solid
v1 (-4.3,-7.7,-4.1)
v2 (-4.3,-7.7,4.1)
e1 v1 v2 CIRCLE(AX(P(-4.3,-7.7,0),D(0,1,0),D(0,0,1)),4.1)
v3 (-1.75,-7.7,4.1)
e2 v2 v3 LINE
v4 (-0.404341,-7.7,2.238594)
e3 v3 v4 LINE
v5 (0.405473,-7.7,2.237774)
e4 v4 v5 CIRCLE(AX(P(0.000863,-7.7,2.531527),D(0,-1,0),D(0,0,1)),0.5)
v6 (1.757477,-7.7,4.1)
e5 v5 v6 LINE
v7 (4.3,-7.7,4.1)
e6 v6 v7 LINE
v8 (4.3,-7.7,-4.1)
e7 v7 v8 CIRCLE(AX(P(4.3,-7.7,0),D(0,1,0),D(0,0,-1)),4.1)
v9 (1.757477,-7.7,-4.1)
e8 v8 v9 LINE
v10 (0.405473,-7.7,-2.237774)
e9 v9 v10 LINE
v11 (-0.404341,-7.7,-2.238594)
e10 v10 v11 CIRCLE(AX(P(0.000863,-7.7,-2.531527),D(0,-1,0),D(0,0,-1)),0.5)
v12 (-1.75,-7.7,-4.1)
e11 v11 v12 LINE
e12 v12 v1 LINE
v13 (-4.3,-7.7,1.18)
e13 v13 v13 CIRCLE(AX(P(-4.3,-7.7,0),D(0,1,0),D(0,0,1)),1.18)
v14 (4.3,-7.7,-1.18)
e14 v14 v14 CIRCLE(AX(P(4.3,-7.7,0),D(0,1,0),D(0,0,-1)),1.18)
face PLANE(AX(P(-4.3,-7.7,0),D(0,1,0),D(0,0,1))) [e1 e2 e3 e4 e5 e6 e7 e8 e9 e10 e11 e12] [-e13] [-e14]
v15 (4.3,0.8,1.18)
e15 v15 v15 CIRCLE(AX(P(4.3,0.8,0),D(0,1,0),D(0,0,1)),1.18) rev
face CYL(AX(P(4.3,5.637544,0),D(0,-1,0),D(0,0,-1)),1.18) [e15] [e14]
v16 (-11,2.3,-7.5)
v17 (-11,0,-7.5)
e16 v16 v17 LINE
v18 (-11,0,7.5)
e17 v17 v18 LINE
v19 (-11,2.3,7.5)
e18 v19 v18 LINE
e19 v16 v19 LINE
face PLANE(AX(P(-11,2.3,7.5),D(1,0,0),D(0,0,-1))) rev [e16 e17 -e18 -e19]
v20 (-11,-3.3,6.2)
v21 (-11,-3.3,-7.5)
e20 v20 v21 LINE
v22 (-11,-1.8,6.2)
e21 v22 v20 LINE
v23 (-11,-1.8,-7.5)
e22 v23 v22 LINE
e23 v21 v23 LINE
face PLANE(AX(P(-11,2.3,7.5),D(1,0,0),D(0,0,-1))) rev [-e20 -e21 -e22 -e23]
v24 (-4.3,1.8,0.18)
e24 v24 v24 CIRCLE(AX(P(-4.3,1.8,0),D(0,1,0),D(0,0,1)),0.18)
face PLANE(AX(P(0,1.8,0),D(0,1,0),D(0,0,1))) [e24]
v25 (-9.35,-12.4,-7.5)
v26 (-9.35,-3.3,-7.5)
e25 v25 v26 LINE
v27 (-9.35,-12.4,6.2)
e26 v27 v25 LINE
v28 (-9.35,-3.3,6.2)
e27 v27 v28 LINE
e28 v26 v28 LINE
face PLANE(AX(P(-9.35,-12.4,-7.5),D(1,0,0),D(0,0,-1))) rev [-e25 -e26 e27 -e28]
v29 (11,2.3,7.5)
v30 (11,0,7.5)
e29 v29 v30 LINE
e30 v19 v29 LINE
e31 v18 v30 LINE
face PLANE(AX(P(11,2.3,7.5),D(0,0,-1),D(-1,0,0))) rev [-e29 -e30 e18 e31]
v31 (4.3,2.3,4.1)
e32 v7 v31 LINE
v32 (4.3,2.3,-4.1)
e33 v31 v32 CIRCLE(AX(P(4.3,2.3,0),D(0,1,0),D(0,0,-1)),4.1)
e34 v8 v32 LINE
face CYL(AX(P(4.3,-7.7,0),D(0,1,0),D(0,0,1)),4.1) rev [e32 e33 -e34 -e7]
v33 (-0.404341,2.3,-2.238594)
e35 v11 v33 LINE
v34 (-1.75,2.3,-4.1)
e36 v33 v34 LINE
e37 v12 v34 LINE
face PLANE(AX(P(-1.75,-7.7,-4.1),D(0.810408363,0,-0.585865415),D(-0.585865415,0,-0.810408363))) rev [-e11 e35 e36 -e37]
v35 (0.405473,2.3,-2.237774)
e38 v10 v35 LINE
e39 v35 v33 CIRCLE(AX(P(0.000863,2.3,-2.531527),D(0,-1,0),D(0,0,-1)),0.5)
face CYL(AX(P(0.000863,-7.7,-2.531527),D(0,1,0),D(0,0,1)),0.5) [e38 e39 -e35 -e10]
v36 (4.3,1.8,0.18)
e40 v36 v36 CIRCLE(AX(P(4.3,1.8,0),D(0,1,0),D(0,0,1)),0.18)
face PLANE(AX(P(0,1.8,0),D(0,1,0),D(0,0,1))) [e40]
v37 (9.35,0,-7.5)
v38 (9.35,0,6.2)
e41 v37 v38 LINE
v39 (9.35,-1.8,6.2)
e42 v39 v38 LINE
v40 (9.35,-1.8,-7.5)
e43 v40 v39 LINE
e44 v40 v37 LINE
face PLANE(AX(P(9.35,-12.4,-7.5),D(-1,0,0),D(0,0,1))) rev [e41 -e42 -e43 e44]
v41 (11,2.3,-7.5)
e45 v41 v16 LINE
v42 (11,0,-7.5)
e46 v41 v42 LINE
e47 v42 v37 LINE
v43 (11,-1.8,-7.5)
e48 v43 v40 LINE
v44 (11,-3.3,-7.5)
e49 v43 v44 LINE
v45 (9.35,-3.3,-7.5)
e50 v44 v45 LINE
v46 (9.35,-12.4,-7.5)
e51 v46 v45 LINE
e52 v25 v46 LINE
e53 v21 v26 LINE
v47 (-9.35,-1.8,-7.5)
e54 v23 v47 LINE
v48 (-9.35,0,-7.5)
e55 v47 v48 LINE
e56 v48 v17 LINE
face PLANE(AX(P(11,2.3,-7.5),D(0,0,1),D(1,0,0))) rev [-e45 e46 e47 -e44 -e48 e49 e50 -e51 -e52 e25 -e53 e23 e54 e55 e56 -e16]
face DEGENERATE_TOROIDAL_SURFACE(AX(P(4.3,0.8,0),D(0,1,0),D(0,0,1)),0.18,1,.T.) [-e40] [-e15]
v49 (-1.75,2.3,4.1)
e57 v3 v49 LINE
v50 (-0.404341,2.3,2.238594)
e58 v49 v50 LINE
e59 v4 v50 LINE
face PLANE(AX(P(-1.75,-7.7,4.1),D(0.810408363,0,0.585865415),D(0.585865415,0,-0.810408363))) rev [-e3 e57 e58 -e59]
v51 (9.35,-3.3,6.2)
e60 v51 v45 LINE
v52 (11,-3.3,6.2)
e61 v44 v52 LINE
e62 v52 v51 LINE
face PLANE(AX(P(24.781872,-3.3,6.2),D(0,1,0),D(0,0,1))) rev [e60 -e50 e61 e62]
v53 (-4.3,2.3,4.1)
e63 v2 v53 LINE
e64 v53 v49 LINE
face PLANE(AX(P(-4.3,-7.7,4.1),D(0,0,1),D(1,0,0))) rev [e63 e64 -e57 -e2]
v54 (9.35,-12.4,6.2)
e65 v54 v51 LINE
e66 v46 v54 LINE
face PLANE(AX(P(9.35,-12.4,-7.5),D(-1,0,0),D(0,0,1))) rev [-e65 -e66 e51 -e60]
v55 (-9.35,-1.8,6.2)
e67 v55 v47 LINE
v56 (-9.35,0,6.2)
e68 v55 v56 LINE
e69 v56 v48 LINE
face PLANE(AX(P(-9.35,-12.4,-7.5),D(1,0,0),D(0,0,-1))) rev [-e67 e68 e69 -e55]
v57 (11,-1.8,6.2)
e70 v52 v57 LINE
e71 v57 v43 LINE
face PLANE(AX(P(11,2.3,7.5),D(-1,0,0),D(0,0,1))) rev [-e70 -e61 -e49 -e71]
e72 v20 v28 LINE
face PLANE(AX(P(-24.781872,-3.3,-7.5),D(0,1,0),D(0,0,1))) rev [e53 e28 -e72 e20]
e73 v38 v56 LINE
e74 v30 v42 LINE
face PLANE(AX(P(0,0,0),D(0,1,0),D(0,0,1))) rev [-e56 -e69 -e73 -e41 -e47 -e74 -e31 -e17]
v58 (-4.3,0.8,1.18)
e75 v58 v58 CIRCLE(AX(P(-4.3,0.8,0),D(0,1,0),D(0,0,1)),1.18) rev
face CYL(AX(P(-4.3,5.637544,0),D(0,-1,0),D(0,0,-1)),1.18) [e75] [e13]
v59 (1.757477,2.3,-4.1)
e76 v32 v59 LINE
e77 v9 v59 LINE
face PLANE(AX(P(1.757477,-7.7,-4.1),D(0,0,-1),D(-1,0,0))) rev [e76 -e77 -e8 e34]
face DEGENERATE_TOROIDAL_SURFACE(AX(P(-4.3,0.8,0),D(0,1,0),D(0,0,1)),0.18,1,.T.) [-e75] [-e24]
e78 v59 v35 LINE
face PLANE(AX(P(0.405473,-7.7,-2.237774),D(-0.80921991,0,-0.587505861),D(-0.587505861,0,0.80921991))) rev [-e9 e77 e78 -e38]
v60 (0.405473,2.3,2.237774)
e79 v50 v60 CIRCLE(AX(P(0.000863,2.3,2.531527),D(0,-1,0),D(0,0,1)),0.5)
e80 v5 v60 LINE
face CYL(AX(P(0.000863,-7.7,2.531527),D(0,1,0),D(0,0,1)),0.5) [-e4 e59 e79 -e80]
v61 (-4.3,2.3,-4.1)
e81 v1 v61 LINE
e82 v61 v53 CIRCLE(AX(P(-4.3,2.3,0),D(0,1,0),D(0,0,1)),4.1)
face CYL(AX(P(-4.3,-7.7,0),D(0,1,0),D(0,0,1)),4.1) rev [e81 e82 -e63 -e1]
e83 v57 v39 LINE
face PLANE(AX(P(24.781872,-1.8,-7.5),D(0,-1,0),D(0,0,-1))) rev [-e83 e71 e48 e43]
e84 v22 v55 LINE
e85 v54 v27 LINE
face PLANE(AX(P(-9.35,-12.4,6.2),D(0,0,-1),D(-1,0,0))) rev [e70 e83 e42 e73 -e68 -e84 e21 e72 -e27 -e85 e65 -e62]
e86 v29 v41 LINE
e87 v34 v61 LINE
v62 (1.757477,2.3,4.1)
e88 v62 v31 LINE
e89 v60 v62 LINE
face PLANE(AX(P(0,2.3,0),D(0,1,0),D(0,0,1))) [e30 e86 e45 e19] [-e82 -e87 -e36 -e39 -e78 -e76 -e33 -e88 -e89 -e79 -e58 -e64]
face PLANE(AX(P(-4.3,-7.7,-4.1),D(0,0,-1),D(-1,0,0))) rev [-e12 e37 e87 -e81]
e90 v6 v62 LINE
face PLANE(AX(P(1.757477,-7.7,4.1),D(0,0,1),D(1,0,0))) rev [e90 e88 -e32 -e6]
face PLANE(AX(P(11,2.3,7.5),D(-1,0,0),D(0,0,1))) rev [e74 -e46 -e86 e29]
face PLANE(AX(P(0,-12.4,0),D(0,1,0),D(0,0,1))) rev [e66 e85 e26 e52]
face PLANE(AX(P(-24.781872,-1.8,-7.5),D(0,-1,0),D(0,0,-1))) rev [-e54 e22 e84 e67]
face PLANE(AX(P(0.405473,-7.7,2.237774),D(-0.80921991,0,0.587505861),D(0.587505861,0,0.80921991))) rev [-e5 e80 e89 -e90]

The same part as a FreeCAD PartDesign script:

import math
import FreeCAD as App
import Part
import Sketcher

V = App.Vector
Q = App.Units.Quantity


def edges_at(feature, points):
    """Names of the edges that pass closest to the given points."""
    edges = feature.Shape.Edges
    near = lambda p: min(range(len(edges)), key=lambda i: edges[i].distToShape(Part.Vertex(*p))[0])
    return sorted({f"Edge{near(p) + 1}" for p in points})


def add_polygon(sketch, points):
    """Adds a closed chain of lines whose ends are joined by coincident constraints."""
    first, n = sketch.GeometryCount, len(points)
    for a, b in zip(points, points[1:] + points[:1]):
        sketch.addGeometry(Part.LineSegment(App.Vector(*a, 0), App.Vector(*b, 0)), False)
    for i in range(n):
        sketch.addConstraint(Sketcher.Constraint("Coincident", first + i, 2, first + (i + 1) % n, 1))

doc = App.newDocument("Part")
params = doc.addObject("Spreadsheet::Sheet", "Params")
for row, (alias, value) in enumerate([
    ("sketch1_width", "22 mm"),
    ("sketch1_height", "15 mm"),
    ("pad1_length", "2.3 mm"),
    ("sketch2_width", "18.7 mm"),
    ("sketch2_height", "13.7 mm"),
    ("pad2_length", "12.4 mm"),
    ("sketch3_width", "1.5 mm"),
    ("sketch3_height", "13.7 mm"),
    ("pad3_length", "1.65 mm"),
    ("sketch4_width", "1.5 mm"),
    ("sketch4_height", "13.7 mm"),
    ("pad4_length", "1.65 mm"),
    ("sketch5_radius", "4.1 mm"),
    ("sketch5_radius2", "0.5 mm"),
    ("sketch5_width", "2.55 mm"),
    ("pocket1_length", "10 mm"),
    ("sketch6_diameter", "2.36 mm"),
    ("pad5_length", "9.5 mm"),
    ("fillet_radius", "1 mm"),
], start=1):
    params.set(f"A{row}", alias)
    params.set(f"B{row}", "=" + value)
    params.setAlias(f"B{row}", alias)

body = doc.addObject("PartDesign::Body", "Body")

sketch1 = body.newObject("Sketcher::SketchObject", "Sketch")
sketch1.AttachmentSupport = (doc.getObject("XZ_Plane"), [""])
sketch1.MapMode = "FlatFace"
add_polygon(sketch1, [(-11, -8), (-11, 8), (11, 8), (11, -8)])
sketch1.addConstraint([
    Sketcher.Constraint("Vertical", 0),
    Sketcher.Constraint("Horizontal", 1),
    Sketcher.Constraint("Vertical", 2),
    Sketcher.Constraint("Horizontal", 3),
    Sketcher.Constraint("Symmetric", 0, 2, 2, 2, -1, 1),
    Sketcher.Constraint("DistanceX", 1, 1, 1, 2, Q("22 mm")),
    Sketcher.Constraint("DistanceY", 0, 1, 0, 2, Q("15 mm")),
])
sketch1.setExpression("Constraints[9]", "Params.sketch1_width")
sketch1.setExpression("Constraints[10]", "Params.sketch1_height")
pad1 = body.newObject("PartDesign::Pad", "Pad")
pad1.Profile = sketch1
pad1.setExpression("Length", "Params.pad1_length")
pad1.Reversed = True

sketch2 = body.newObject("Sketcher::SketchObject", "Sketch001")
sketch2.AttachmentSupport = (doc.getObject("XZ_Plane"), [""])
sketch2.MapMode = "FlatFace"
add_polygon(sketch2, [(-9, 6), (-9, -8), (9, -8), (9, 6)])
sketch2.addConstraint([
    Sketcher.Constraint("Vertical", 0),
    Sketcher.Constraint("Horizontal", 1),
    Sketcher.Constraint("Vertical", 2),
    Sketcher.Constraint("Horizontal", 3),
    Sketcher.Constraint("DistanceX", 1, 1, 1, 2, Q("18.7 mm")),
    Sketcher.Constraint("DistanceY", 0, 2, 0, 1, Q("13.7 mm")),
    Sketcher.Constraint("DistanceY", 0, 2, -1, 1, Q("7.5 mm")),
    Sketcher.Constraint("DistanceX", 0, 2, -1, 1, Q("9.35 mm")),
])
sketch2.setExpression("Constraints[8]", "Params.sketch2_width")
sketch2.setExpression("Constraints[9]", "Params.sketch2_height")
pad2 = body.newObject("PartDesign::Pad", "Pad001")
pad2.Profile = sketch2
pad2.setExpression("Length", "Params.pad2_length")

sketch3 = body.newObject("Sketcher::SketchObject", "Sketch002")
sketch3.AttachmentSupport = (doc.getObject("YZ_Plane"), [""])
sketch3.MapMode = "FlatFace"
sketch3.AttachmentOffset = App.Placement(V(0, 0, -9.35), App.Rotation())
add_polygon(sketch3, [(-1.8, -7.5), (-3.3, -7.5), (-3.3, 6.2), (-1.8, 6.2)])
sketch3.addConstraint([
    Sketcher.Constraint("Horizontal", 0),
    Sketcher.Constraint("Vertical", 1),
    Sketcher.Constraint("Horizontal", 2),
    Sketcher.Constraint("Vertical", 3),
    Sketcher.Constraint("DistanceX", 0, 2, 0, 1, Q("1.5 mm")),
    Sketcher.Constraint("DistanceY", 1, 1, 1, 2, Q("13.7 mm")),
    Sketcher.Constraint("DistanceX", 0, 2, -1, 1, Q("3.3 mm")),
    Sketcher.Constraint("DistanceY", 0, 2, -1, 1, Q("7.5 mm")),
])
sketch3.setExpression("Constraints[8]", "Params.sketch3_width")
sketch3.setExpression("Constraints[9]", "Params.sketch3_height")
pad3 = body.newObject("PartDesign::Pad", "Pad002")
pad3.Profile = sketch3
pad3.setExpression("Length", "Params.pad3_length")
pad3.Reversed = True

sketch4 = body.newObject("Sketcher::SketchObject", "Sketch003")
sketch4.AttachmentSupport = (doc.getObject("YZ_Plane"), [""])
sketch4.MapMode = "FlatFace"
sketch4.AttachmentOffset = App.Placement(V(0, 0, 9.35), App.Rotation())
add_polygon(sketch4, [(-1.8, 6.2), (-3.3, 6.2), (-3.3, -7.5), (-1.8, -7.5)])
sketch4.addConstraint([
    Sketcher.Constraint("Horizontal", 0),
    Sketcher.Constraint("Vertical", 1),
    Sketcher.Constraint("Horizontal", 2),
    Sketcher.Constraint("Vertical", 3),
    Sketcher.Constraint("DistanceX", 0, 2, 0, 1, Q("1.5 mm")),
    Sketcher.Constraint("DistanceY", 1, 2, 1, 1, Q("13.7 mm")),
    Sketcher.Constraint("DistanceX", 0, 2, -1, 1, Q("3.3 mm")),
    Sketcher.Constraint("DistanceY", -1, 1, 0, 2, Q("6.2 mm")),
])
sketch4.setExpression("Constraints[8]", "Params.sketch4_width")
sketch4.setExpression("Constraints[9]", "Params.sketch4_height")
pad4 = body.newObject("PartDesign::Pad", "Pad003")
pad4.Profile = sketch4
pad4.setExpression("Length", "Params.pad4_length")

sketch5 = body.newObject("Sketcher::SketchObject", "Sketch004")
sketch5.AttachmentSupport = (doc.getObject("XZ_Plane"), [""])
sketch5.MapMode = "FlatFace"
sketch5.AttachmentOffset = App.Placement(V(0, 0, -2.3), App.Rotation())
sketch5.addGeometry([
    Part.LineSegment(V(0.4, 2.2, 0), V(1.8, 4.1, 0)),
    Part.LineSegment(V(1.8, 4.1, 0), V(4.3, 4.1, 0)),
    Part.ArcOfCircle(Part.Circle(V(4.3, 0, 0), V(0, 0, 1), 4.1), math.radians(-90), math.radians(90)),
    Part.LineSegment(V(4.3, -4.1, 0), V(1.8, -4.1, 0)),
    Part.LineSegment(V(1.8, -4.1, 0), V(0.4, -2.2, 0)),
    Part.ArcOfCircle(Part.Circle(V(0, -2.5, 0), V(0, 0, 1), 0.5), math.radians(36), math.radians(144)),
    Part.LineSegment(V(-0.4, -2.2, 0), V(-1.8, -4.1, 0)),
    Part.LineSegment(V(-1.8, -4.1, 0), V(-4.3, -4.1, 0)),
    Part.ArcOfCircle(Part.Circle(V(-4.3, 0, 0), V(0, 0, 1), 4.1), math.radians(90), math.radians(270)),
    Part.LineSegment(V(-4.3, 4.1, 0), V(-1.8, 4.1, 0)),
    Part.LineSegment(V(-1.8, 4.1, 0), V(-0.4, 2.2, 0)),
    Part.ArcOfCircle(Part.Circle(V(0, 2.5, 0), V(0, 0, 1), 0.5), math.radians(-144), math.radians(-36)),
], False)
sketch5.addConstraint([
    Sketcher.Constraint("Coincident", 0, 2, 1, 1),
    Sketcher.Constraint("Tangent", 1, 2, 2, 2),
    Sketcher.Constraint("Tangent", 2, 1, 3, 1),
    Sketcher.Constraint("Coincident", 3, 2, 4, 1),
    Sketcher.Constraint("Tangent", 4, 2, 5, 1),
    Sketcher.Constraint("Tangent", 5, 2, 6, 1),
    Sketcher.Constraint("Coincident", 6, 2, 7, 1),
    Sketcher.Constraint("Tangent", 7, 2, 8, 2),
    Sketcher.Constraint("Tangent", 8, 1, 9, 1),
    Sketcher.Constraint("Coincident", 9, 2, 10, 1),
    Sketcher.Constraint("Tangent", 10, 2, 11, 1),
    Sketcher.Constraint("Tangent", 11, 2, 0, 1),
    Sketcher.Constraint("Horizontal", 1),
    Sketcher.Constraint("Horizontal", 3),
    Sketcher.Constraint("Horizontal", 7),
    Sketcher.Constraint("Horizontal", 9),
    Sketcher.Constraint("Equal", 2, 8),
    Sketcher.Constraint("Equal", 5, 11),
    Sketcher.Constraint("Symmetric", 2, 3, 8, 3, -1, 1),
    Sketcher.Constraint("Symmetric", 5, 3, 11, 3, -1),
    Sketcher.Constraint("Symmetric", 0, 2, 3, 2, -1),
    Sketcher.Constraint("Vertical", 6, 2, 9, 2),
    Sketcher.Constraint("Radius", 2, Q("4.1 mm")),
    Sketcher.Constraint("Radius", 5, Q("0.5 mm")),
    Sketcher.Constraint("DistanceX", 7, 2, 7, 1, Q("2.55 mm")),
    Sketcher.Constraint("DistanceX", -1, 1, 2, 3, Q("4.3 mm")),
    Sketcher.Constraint("DistanceY", 4, 2, 11, 3, Q("4.769301 mm")),
    Sketcher.Constraint("Distance", 0, Q("2.301261 mm")),
    Sketcher.Constraint("DistanceX", 1, 1, 1, 2, Q("2.542523 mm")),
])
sketch5.setExpression("Constraints[22]", "Params.sketch5_radius")
sketch5.setExpression("Constraints[23]", "Params.sketch5_radius2")
sketch5.setExpression("Constraints[24]", "Params.sketch5_width")
pocket1 = body.newObject("PartDesign::Pocket", "Pocket")
pocket1.Profile = sketch5
pocket1.setExpression("Length", "Params.pocket1_length")
pocket1.Reversed = True

sketch6 = body.newObject("Sketcher::SketchObject", "Sketch005")
sketch6.AttachmentSupport = (doc.getObject("XZ_Plane"), [""])
sketch6.MapMode = "FlatFace"
sketch6.AttachmentOffset = App.Placement(V(0, 0, 7.7), App.Rotation())
sketch6.addGeometry([
    Part.Circle(V(-4.3, 0, 0), V(0, 0, 1), 1.2),
    Part.Circle(V(4.3, 0, 0), V(0, 0, 1), 1.2),
], False)
sketch6.addConstraint([
    Sketcher.Constraint("Equal", 0, 1),
    Sketcher.Constraint("Symmetric", 0, 3, 1, 3, -1, 1),
    Sketcher.Constraint("PointOnObject", 0, 3, -1),
    Sketcher.Constraint("Diameter", 0, Q("2.36 mm")),
    Sketcher.Constraint("DistanceX", 0, 3, -1, 1, Q("4.3 mm")),
])
sketch6.setExpression("Constraints[3]", "Params.sketch6_diameter")
pad5 = body.newObject("PartDesign::Pad", "Pad004")
pad5.Profile = sketch6
pad5.setExpression("Length", "Params.pad5_length")
pad5.Reversed = True
doc.recompute()

fillet = body.newObject("PartDesign::Fillet", "Fillet")
fillet.Base = (pad5, edges_at(pad5, [(-5.48, 1.8, 0), (3.12, 1.8, 0)]))
fillet.setExpression("Radius", "Params.fillet_radius")

doc.recompute()
